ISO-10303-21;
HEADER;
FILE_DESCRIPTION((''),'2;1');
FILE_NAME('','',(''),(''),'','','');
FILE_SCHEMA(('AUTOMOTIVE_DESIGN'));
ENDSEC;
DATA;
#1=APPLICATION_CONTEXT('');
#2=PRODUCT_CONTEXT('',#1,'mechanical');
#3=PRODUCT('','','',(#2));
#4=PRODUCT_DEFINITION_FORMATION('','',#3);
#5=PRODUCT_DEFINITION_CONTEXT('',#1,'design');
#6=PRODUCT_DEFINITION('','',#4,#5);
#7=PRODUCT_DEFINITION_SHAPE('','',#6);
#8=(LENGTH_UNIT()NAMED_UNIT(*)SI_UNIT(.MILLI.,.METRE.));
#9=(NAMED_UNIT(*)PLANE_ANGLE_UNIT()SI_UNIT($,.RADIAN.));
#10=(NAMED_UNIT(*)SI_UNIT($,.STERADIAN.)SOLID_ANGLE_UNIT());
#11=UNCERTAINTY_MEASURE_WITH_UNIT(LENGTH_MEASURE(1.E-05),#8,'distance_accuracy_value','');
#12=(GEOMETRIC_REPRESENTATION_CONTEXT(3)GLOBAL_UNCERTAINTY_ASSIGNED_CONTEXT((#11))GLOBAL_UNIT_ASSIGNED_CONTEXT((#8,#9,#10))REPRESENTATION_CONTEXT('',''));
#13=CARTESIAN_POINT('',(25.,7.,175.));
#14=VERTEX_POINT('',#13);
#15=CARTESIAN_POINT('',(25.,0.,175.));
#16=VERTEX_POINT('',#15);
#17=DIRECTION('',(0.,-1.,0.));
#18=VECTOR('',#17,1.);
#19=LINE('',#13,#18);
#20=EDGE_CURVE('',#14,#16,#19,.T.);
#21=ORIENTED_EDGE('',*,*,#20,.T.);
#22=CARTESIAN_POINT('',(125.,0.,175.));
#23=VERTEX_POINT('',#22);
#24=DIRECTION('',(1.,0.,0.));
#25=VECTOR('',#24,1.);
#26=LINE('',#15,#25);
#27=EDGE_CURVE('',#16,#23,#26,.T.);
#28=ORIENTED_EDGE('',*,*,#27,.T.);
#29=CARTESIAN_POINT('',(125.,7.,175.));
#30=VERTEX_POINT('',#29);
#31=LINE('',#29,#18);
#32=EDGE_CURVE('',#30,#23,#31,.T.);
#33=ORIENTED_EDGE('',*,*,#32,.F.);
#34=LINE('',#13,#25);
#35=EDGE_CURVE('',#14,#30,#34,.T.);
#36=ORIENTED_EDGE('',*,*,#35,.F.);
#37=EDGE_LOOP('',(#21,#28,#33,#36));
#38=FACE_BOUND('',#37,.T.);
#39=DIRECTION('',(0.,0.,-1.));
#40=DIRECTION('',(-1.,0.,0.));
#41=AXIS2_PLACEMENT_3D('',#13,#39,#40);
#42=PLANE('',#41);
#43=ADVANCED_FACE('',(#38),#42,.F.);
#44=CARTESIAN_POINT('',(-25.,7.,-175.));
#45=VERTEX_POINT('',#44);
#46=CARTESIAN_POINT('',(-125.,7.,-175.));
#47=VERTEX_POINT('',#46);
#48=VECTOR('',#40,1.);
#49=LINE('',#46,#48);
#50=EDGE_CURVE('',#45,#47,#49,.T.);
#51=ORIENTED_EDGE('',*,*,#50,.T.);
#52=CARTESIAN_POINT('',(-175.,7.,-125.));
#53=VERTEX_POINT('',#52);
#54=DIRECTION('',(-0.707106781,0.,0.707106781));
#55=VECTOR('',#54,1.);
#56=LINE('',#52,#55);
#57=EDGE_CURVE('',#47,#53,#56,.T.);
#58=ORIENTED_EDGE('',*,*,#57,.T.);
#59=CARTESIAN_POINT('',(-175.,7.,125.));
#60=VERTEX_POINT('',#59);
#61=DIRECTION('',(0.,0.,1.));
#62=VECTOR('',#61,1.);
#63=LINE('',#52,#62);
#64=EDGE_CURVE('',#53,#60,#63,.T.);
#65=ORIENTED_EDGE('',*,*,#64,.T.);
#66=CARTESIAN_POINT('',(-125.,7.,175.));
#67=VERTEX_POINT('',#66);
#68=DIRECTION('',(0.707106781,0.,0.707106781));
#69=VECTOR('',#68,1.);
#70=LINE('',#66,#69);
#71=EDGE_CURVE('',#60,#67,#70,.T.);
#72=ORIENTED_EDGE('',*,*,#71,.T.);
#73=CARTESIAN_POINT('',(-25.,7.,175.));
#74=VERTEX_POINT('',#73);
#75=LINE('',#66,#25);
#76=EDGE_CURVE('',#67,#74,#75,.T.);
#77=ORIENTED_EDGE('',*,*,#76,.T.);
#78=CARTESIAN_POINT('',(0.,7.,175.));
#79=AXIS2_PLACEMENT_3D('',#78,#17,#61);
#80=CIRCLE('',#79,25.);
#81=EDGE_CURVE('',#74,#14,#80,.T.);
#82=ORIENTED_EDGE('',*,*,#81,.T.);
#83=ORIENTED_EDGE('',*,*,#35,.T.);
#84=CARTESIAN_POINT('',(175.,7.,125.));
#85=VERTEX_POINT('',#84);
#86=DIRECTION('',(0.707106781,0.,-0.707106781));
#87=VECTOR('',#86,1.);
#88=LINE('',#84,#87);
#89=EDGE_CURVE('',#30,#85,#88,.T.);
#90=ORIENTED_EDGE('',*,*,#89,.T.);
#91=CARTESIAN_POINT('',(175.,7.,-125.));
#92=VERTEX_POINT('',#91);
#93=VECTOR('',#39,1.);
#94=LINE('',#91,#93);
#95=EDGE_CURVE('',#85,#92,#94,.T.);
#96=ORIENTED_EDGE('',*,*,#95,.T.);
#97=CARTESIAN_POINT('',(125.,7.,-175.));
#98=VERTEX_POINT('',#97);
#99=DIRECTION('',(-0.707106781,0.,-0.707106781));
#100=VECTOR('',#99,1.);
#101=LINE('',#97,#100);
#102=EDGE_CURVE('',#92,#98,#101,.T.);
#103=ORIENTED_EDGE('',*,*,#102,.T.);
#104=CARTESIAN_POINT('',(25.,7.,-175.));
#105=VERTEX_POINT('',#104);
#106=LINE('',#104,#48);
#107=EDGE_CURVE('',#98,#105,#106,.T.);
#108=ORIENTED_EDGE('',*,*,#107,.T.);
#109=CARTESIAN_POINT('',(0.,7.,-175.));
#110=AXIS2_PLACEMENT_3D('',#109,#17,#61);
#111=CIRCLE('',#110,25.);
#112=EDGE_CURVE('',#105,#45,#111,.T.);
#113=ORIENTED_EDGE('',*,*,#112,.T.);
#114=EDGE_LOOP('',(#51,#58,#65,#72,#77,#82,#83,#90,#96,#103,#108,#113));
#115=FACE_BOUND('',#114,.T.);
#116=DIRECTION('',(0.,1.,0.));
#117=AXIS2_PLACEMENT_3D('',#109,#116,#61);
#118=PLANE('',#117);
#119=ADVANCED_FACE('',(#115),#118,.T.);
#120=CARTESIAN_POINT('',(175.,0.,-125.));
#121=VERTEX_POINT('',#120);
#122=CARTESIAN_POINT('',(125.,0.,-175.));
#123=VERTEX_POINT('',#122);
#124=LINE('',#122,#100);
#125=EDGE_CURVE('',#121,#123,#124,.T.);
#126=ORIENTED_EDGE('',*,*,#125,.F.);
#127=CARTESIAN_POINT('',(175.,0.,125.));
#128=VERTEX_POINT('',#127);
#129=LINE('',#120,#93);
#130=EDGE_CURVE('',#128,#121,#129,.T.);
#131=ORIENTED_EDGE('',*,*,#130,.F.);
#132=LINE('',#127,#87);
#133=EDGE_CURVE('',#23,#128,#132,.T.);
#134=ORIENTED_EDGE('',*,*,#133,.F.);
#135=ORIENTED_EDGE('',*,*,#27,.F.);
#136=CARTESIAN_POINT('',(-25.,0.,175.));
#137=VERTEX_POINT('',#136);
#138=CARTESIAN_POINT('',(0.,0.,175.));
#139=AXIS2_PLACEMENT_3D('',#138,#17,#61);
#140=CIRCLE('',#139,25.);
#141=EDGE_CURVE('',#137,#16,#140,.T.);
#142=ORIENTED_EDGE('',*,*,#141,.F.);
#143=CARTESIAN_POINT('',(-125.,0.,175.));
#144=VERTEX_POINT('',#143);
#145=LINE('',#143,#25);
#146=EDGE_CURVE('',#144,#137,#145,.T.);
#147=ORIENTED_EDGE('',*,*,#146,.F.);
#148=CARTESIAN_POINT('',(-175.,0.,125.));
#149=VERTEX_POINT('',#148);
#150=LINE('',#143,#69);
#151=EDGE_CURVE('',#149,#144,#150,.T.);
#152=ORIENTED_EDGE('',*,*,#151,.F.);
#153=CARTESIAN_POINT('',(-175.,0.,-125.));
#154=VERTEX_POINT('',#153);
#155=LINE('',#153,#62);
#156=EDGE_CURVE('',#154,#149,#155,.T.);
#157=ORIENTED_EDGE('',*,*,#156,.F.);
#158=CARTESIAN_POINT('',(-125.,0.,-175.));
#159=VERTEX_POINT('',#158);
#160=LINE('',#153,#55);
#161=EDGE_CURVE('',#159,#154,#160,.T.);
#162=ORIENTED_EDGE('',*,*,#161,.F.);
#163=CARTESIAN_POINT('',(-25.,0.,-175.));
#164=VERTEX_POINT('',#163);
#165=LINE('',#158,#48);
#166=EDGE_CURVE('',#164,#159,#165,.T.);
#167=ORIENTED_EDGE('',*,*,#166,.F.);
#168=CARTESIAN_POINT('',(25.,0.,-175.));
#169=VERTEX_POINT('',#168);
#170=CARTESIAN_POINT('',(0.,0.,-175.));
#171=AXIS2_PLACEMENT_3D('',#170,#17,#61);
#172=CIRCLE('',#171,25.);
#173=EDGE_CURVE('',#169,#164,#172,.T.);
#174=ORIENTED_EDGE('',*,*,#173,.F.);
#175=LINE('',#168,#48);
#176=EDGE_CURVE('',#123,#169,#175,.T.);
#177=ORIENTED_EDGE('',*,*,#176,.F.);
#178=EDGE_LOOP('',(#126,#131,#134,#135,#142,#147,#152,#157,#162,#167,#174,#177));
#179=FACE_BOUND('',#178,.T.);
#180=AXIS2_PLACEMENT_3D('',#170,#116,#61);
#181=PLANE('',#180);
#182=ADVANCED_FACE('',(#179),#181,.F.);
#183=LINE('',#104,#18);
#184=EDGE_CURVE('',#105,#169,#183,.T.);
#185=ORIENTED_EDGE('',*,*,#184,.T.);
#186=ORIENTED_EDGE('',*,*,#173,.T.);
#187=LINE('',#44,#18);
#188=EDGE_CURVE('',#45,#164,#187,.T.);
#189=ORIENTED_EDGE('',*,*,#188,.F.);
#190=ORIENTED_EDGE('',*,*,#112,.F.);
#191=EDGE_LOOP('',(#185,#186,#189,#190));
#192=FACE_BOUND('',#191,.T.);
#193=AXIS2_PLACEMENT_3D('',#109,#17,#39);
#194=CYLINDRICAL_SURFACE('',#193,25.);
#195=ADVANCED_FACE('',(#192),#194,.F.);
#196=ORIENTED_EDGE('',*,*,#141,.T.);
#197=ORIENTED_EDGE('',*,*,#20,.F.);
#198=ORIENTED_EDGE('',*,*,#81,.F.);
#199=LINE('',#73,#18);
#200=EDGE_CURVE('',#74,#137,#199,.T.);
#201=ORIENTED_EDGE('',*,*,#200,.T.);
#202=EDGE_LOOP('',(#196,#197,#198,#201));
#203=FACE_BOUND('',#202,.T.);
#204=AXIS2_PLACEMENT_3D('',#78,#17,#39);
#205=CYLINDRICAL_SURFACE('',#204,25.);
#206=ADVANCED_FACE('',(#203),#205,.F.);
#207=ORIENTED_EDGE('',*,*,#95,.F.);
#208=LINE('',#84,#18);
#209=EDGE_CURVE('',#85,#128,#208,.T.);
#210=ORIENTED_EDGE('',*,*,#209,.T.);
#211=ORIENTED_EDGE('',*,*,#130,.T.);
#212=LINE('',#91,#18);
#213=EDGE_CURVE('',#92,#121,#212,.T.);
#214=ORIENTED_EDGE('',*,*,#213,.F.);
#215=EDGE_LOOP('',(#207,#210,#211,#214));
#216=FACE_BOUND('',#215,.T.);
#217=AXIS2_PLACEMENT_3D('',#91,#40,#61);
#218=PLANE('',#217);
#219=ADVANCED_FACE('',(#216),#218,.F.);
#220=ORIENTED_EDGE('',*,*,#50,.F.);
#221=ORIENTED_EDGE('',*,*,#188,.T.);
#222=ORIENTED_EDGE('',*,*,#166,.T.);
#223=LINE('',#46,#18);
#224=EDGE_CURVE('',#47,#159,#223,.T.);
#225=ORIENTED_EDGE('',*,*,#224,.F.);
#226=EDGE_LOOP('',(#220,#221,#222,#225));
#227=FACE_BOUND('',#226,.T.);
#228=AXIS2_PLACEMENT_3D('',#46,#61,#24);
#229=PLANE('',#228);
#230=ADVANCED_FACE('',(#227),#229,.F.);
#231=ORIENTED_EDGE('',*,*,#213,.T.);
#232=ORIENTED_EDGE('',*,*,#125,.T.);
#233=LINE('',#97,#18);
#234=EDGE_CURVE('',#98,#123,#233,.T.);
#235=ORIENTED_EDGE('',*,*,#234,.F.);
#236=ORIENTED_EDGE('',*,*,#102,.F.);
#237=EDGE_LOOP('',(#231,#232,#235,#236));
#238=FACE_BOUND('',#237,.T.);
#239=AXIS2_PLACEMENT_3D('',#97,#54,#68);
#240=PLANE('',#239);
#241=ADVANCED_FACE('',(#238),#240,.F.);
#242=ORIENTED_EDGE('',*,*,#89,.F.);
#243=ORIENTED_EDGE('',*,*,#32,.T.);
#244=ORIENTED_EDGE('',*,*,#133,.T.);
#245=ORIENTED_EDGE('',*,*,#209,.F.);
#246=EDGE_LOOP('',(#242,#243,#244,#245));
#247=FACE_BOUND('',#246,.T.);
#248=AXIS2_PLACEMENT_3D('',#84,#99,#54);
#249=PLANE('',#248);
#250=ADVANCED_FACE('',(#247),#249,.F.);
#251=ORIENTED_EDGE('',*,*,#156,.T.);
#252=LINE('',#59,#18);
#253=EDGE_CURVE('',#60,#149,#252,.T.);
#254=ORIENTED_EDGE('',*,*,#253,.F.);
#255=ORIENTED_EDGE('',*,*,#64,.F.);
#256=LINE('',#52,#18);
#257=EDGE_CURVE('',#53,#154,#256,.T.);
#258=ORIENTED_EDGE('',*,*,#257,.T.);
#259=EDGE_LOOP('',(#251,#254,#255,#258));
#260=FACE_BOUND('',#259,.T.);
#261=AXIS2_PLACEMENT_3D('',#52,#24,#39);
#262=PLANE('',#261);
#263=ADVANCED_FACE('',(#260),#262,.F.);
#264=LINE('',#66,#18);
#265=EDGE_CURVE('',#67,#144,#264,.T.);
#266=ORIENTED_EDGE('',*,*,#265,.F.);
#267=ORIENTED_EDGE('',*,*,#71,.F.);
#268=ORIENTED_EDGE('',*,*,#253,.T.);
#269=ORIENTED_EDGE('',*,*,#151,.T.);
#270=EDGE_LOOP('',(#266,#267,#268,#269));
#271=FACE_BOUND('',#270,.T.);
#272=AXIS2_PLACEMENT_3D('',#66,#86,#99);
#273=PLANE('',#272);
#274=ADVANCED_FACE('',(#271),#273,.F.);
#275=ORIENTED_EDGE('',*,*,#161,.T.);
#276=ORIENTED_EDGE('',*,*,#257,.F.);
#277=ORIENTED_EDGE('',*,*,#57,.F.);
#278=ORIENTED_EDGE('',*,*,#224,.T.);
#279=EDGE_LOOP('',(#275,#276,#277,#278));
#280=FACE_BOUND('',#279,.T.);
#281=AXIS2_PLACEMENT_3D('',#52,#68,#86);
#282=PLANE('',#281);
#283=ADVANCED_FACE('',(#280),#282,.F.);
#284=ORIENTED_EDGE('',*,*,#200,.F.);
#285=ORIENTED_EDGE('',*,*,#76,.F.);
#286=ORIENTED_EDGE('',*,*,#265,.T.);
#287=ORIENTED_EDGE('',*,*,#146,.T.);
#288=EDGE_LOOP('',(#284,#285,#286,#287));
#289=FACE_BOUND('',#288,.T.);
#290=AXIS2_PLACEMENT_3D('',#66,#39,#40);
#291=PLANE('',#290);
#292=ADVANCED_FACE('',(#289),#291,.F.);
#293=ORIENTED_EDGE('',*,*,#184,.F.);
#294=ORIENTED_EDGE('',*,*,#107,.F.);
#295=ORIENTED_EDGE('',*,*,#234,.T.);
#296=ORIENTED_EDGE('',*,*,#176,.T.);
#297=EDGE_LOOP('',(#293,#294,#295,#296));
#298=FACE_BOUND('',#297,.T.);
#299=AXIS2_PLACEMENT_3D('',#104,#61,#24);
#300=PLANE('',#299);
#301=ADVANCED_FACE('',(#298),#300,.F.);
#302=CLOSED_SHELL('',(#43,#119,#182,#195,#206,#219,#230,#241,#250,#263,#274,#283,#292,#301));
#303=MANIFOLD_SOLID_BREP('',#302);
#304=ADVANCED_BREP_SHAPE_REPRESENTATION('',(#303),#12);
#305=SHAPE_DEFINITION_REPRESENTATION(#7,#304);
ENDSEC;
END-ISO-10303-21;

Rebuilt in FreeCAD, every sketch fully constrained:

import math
import FreeCAD as App
import Part
import Sketcher

V = App.Vector
Q = App.Units.Quantity

doc = App.newDocument("Part")
body = doc.addObject("PartDesign::Body", "Body")

# Sketch on XZ plane
sketch1 = body.newObject("Sketcher::SketchObject", "Sketch")
sketch1.AttachmentSupport = (doc.getObject("XZ_Plane"), [""])
sketch1.MapMode = "FlatFace"
sketch1.addGeometry([
    Part.LineSegment(V(-25, -175, 0), V(-125, -175, 0)),  # 0
    Part.LineSegment(V(-125, -175, 0), V(-175, -125, 0)),  # 1
    Part.LineSegment(V(-175, -125, 0), V(-175, 125, 0)),  # 2
    Part.LineSegment(V(-175, 125, 0), V(-125, 175, 0)),  # 3
    Part.LineSegment(V(-125, 175, 0), V(-25, 175, 0)),  # 4
    Part.ArcOfCircle(Part.Circle(V(0, 175, 0), V(0, 0, 1), 25), math.radians(180), math.radians(360)),  # 5
    Part.LineSegment(V(25, 175, 0), V(125, 175, 0)),  # 6
    Part.LineSegment(V(125, 175, 0), V(175, 125, 0)),  # 7
    Part.LineSegment(V(175, 125, 0), V(175, -125, 0)),  # 8
    Part.LineSegment(V(175, -125, 0), V(125, -175, 0)),  # 9
    Part.LineSegment(V(125, -175, 0), V(25, -175, 0)),  # 10
    Part.ArcOfCircle(Part.Circle(V(0, -175, 0), V(0, 0, 1), 25), math.radians(0), math.radians(180)),  # 11
], False)
sketch1.addConstraint([
    Sketcher.Constraint("Coincident", 0, 2, 1, 1),
    Sketcher.Constraint("Coincident", 1, 2, 2, 1),
    Sketcher.Constraint("Coincident", 2, 2, 3, 1),
    Sketcher.Constraint("Coincident", 3, 2, 4, 1),
    Sketcher.Constraint("Coincident", 4, 2, 5, 1),
    Sketcher.Constraint("Coincident", 5, 2, 6, 1),
    Sketcher.Constraint("Coincident", 6, 2, 7, 1),
    Sketcher.Constraint("Coincident", 7, 2, 8, 1),
    Sketcher.Constraint("Coincident", 8, 2, 9, 1),
    Sketcher.Constraint("Coincident", 9, 2, 10, 1),
    Sketcher.Constraint("Coincident", 10, 2, 11, 1),
    Sketcher.Constraint("Coincident", 11, 2, 0, 1),
    Sketcher.Constraint("Horizontal", 0),
    Sketcher.Constraint("Vertical", 2),
    Sketcher.Constraint("Horizontal", 4),
    Sketcher.Constraint("Horizontal", 6),
    Sketcher.Constraint("Vertical", 8),
    Sketcher.Constraint("Horizontal", 10),
    Sketcher.Constraint("Equal", 5, 11),
    Sketcher.Constraint("Symmetric", 5, 3, 11, 3, -1, 1),
    Sketcher.Constraint("Symmetric", 0, 2, 6, 2, -1, 1),
    Sketcher.Constraint("Symmetric", 1, 2, 7, 2, -1, 1),
    Sketcher.Constraint("Symmetric", 3, 2, 9, 2, -1, 1),
    Sketcher.Constraint("Symmetric", 4, 2, 5, 2, -2),
    Sketcher.Constraint("Perpendicular", 1, 3),
    Sketcher.Constraint("Perpendicular", 7, 9),
    Sketcher.Constraint("Horizontal", 11, 3, 0, 2),
    Sketcher.Constraint("Horizontal", 2, 2, 7, 2),
    Sketcher.Constraint("Vertical", 0, 2, 3, 2),
    Sketcher.Constraint("Radius", 5, Q("25 mm")),
    Sketcher.Constraint("DistanceX", 0, 2, 0, 1, Q("100 mm")),
    Sketcher.Constraint("DistanceY", 2, 1, 2, 2, Q("250 mm")),
    Sketcher.Constraint("DistanceY", -1, 1, 5, 3, Q("175 mm")),
])
pad1 = body.newObject("PartDesign::Pad", "Pad")
pad1.Profile = sketch1
pad1.Length = 7
pad1.Reversed = True

doc.recompute()
